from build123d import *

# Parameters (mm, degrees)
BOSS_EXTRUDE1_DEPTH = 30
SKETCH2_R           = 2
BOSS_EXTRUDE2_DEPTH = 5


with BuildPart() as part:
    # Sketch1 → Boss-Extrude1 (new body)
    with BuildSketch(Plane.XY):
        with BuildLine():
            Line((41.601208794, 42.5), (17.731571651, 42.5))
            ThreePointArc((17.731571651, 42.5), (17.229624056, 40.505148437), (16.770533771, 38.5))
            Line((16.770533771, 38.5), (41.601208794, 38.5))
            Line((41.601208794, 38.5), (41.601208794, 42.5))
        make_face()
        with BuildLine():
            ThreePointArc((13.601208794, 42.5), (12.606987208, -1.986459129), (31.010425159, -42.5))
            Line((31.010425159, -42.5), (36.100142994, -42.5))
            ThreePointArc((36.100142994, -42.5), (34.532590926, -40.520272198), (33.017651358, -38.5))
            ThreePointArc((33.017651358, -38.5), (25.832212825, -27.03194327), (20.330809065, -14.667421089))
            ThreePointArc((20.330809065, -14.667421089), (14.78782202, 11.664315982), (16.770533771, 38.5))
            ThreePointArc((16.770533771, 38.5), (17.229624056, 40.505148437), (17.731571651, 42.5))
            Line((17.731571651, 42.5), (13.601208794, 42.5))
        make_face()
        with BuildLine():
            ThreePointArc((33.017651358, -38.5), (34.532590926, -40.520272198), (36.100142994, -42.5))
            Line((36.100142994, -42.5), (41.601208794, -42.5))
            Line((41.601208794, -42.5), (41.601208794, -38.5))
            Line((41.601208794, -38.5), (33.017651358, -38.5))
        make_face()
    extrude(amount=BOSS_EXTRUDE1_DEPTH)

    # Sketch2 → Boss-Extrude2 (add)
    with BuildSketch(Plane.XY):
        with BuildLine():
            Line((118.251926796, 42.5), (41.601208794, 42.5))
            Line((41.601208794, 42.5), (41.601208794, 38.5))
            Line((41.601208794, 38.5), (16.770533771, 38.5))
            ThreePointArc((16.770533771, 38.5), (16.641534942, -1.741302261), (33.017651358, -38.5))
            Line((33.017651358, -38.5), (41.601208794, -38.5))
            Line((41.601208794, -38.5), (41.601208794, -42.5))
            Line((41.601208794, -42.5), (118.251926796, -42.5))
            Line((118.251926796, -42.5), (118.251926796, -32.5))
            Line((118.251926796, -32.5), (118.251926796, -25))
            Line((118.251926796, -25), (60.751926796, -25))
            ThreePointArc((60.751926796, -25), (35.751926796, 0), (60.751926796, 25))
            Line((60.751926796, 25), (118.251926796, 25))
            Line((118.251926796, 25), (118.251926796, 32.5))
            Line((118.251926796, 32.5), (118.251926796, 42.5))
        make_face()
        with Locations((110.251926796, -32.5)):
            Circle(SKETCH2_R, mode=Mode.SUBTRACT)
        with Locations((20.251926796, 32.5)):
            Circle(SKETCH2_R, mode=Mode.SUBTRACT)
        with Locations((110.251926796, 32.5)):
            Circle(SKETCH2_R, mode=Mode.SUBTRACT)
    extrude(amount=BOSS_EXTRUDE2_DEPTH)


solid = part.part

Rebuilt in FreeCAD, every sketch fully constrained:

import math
import FreeCAD as App
import Part
import Sketcher
from FreeCAD import Vector
Q = App.Units.Quantity

doc = App.newDocument("Part")
body = doc.addObject("PartDesign::Body", "Body")

# Sketch on XY plane
sketch1 = body.newObject("Sketcher::SketchObject", "Sketch")
sketch1.AttachmentSupport = (doc.getObject("XY_Plane"), [""])
sketch1.MapMode = "FlatFace"
sketch1.addGeometry(Part.LineSegment(Vector(41.601209, 42.5, 0), Vector(13.601209, 42.5, 0)), False)
sketch1.addGeometry(Part.ArcOfCircle(Part.Circle(Vector(110.573306, 18.078445, 0), Vector(0, 0, 1), 100), math.radians(165.86452), math.radians(217.285311)), False)
sketch1.addGeometry(Part.LineSegment(Vector(31.010425, -42.5, 0), Vector(41.601209, -42.5, 0)), False)
sketch1.addGeometry(Part.LineSegment(Vector(41.601209, -42.5, 0), Vector(41.601209, -38.5, 0)), False)
sketch1.addGeometry(Part.LineSegment(Vector(41.601209, -38.5, 0), Vector(33.017651, -38.5, 0)), False)
sketch1.addGeometry(Part.ArcOfCircle(Part.Circle(Vector(110.573306, 18.078445, 0), Vector(0, 0, 1), 96), math.radians(-160.055925), math.radians(-143.88848)), False)
sketch1.addGeometry(Part.ArcOfCircle(Part.Circle(Vector(110.573306, 18.078445, 0), Vector(0, 0, 1), 96), math.radians(167.717935), math.radians(199.944075)), False)
sketch1.addGeometry(Part.LineSegment(Vector(16.770534, 38.5, 0), Vector(41.601209, 38.5, 0)), False)
sketch1.addGeometry(Part.LineSegment(Vector(41.601209, 38.5, 0), Vector(41.601209, 42.5, 0)), False)
sketch1.addConstraint(Sketcher.Constraint("Coincident", 0, 2, 1, 1))
sketch1.addConstraint(Sketcher.Constraint("Coincident", 1, 2, 2, 1))
sketch1.addConstraint(Sketcher.Constraint("Coincident", 2, 2, 3, 1))
sketch1.addConstraint(Sketcher.Constraint("Coincident", 3, 2, 4, 1))
sketch1.addConstraint(Sketcher.Constraint("Coincident", 4, 2, 5, 2))
sketch1.addConstraint(Sketcher.Constraint("Tangent", 5, 1, 6, 2))
sketch1.addConstraint(Sketcher.Constraint("Coincident", 6, 1, 7, 1))
sketch1.addConstraint(Sketcher.Constraint("Coincident", 7, 2, 8, 1))
sketch1.addConstraint(Sketcher.Constraint("Coincident", 8, 2, 0, 1))
sketch1.addConstraint(Sketcher.Constraint("Horizontal", 0))
sketch1.addConstraint(Sketcher.Constraint("Horizontal", 2))
sketch1.addConstraint(Sketcher.Constraint("Vertical", 3))
sketch1.addConstraint(Sketcher.Constraint("Horizontal", 4))
sketch1.addConstraint(Sketcher.Constraint("Horizontal", 7))
sketch1.addConstraint(Sketcher.Constraint("Vertical", 8))
sketch1.addConstraint(Sketcher.Constraint("Coincident", 5, 3, 1, 3))
sketch1.addConstraint(Sketcher.Constraint("Equal", 5, 6))
sketch1.addConstraint(Sketcher.Constraint("Symmetric", 3, 2, 7, 2, -1))
sketch1.addConstraint(Sketcher.Constraint("Equal", 3, 8))
sketch1.addConstraint(Sketcher.Constraint("Radius", 1, Q("100 mm")))
sketch1.addConstraint(Sketcher.Constraint("Radius", 5, Q("96 mm")))
sketch1.addConstraint(Sketcher.Constraint("DistanceX", 0, 2, 0, 1, Q("28 mm")))
sketch1.addConstraint(Sketcher.Constraint("DistanceY", 3, 1, 3, 2, Q("4 mm")))
sketch1.addConstraint(Sketcher.Constraint("DistanceY", 1, 2, 0, 2, Q("85 mm")))
sketch1.addConstraint(Sketcher.Constraint("DistanceX", 5, 1, 3, 2, Q("21.2704 mm")))
sketch1.addConstraint(Sketcher.Constraint("DistanceX", 2, 1, 2, 2, Q("10.590784 mm")))
sketch1.addConstraint(Sketcher.Constraint("DistanceX", -1, 1, 0, 2, Q("13.601209 mm")))
pad1 = body.newObject("PartDesign::Pad", "Pad")
pad1.Profile = sketch1
pad1.Length = 30

# Sketch on XY plane
sketch2 = body.newObject("Sketcher::SketchObject", "Sketch001")
sketch2.AttachmentSupport = (doc.getObject("XY_Plane"), [""])
sketch2.MapMode = "FlatFace"
sketch2.addGeometry(Part.LineSegment(Vector(118.251927, 42.5, 0), Vector(41.601209, 42.5, 0)), False)
sketch2.addGeometry(Part.LineSegment(Vector(41.601209, 42.5, 0), Vector(41.601209, 38.5, 0)), False)
sketch2.addGeometry(Part.LineSegment(Vector(41.601209, 38.5, 0), Vector(16.770534, 38.5, 0)), False)
sketch2.addGeometry(Part.ArcOfCircle(Part.Circle(Vector(110.573306, 18.078445, 0), Vector(0, 0, 1), 96), math.radians(167.717935), math.radians(216.11152)), False)
sketch2.addGeometry(Part.LineSegment(Vector(33.017651, -38.5, 0), Vector(41.601209, -38.5, 0)), False)
sketch2.addGeometry(Part.LineSegment(Vector(41.601209, -38.5, 0), Vector(41.601209, -42.5, 0)), False)
sketch2.addGeometry(Part.LineSegment(Vector(41.601209, -42.5, 0), Vector(118.251927, -42.5, 0)), False)
sketch2.addGeometry(Part.LineSegment(Vector(118.251927, -42.5, 0), Vector(118.251927, -25, 0)), False)
sketch2.addGeometry(Part.LineSegment(Vector(118.251927, -25, 0), Vector(60.751927, -25, 0)), False)
sketch2.addGeometry(Part.ArcOfCircle(Part.Circle(Vector(60.751927, 0, 0), Vector(0, 0, 1), 25), math.radians(90), math.radians(270)), False)
sketch2.addGeometry(Part.LineSegment(Vector(60.751927, 25, 0), Vector(118.251927, 25, 0)), False)
sketch2.addGeometry(Part.LineSegment(Vector(118.251927, 25, 0), Vector(118.251927, 42.5, 0)), False)
sketch2.addGeometry(Part.Circle(Vector(110.251927, -32.5, 0), Vector(0, 0, 1), 2), False)
sketch2.addGeometry(Part.Circle(Vector(20.251927, 32.5, 0), Vector(0, 0, 1), 2), False)
sketch2.addGeometry(Part.Circle(Vector(110.251927, 32.5, 0), Vector(0, 0, 1), 2), False)
sketch2.addConstraint(Sketcher.Constraint("Coincident", 0, 2, 1, 1))
sketch2.addConstraint(Sketcher.Constraint("Coincident", 1, 2, 2, 1))
sketch2.addConstraint(Sketcher.Constraint("Coincident", 2, 2, 3, 1))
sketch2.addConstraint(Sketcher.Constraint("Coincident", 3, 2, 4, 1))
sketch2.addConstraint(Sketcher.Constraint("Coincident", 4, 2, 5, 1))
sketch2.addConstraint(Sketcher.Constraint("Coincident", 5, 2, 6, 1))
sketch2.addConstraint(Sketcher.Constraint("Coincident", 6, 2, 7, 1))
sketch2.addConstraint(Sketcher.Constraint("Coincident", 7, 2, 8, 1))
sketch2.addConstraint(Sketcher.Constraint("Tangent", 8, 2, 9, 2))
sketch2.addConstraint(Sketcher.Constraint("Tangent", 9, 1, 10, 1))
sketch2.addConstraint(Sketcher.Constraint("Coincident", 10, 2, 11, 1))
sketch2.addConstraint(Sketcher.Constraint("Coincident", 11, 2, 0, 1))
sketch2.addConstraint(Sketcher.Constraint("Horizontal", 0))
sketch2.addConstraint(Sketcher.Constraint("Vertical", 1))
sketch2.addConstraint(Sketcher.Constraint("Horizontal", 2))
sketch2.addConstraint(Sketcher.Constraint("Horizontal", 4))
sketch2.addConstraint(Sketcher.Constraint("Vertical", 5))
sketch2.addConstraint(Sketcher.Constraint("Horizontal", 6))
sketch2.addConstraint(Sketcher.Constraint("Vertical", 7))
sketch2.addConstraint(Sketcher.Constraint("Horizontal", 8))
sketch2.addConstraint(Sketcher.Constraint("Horizontal", 10))
sketch2.addConstraint(Sketcher.Constraint("Vertical", 11))
sketch2.addConstraint(Sketcher.Constraint("Equal", 12, 13))
sketch2.addConstraint(Sketcher.Constraint("Equal", 13, 14))
sketch2.addConstraint(Sketcher.Constraint("Symmetric", 12, 3, 14, 3, -1))
sketch2.addConstraint(Sketcher.Constraint("Symmetric", 1, 2, 4, 2, -1))
sketch2.addConstraint(Sketcher.Constraint("Symmetric", 7, 2, 10, 2, -1))
sketch2.addConstraint(Sketcher.Constraint("Horizontal", 13, 3, 14, 3))
sketch2.addConstraint(Sketcher.Constraint("Equal", 1, 5))
sketch2.addConstraint(Sketcher.Constraint("Diameter", 12, Q("4 mm")))
sketch2.addConstraint(Sketcher.Constraint("Radius", 3, Q("96 mm")))
sketch2.addConstraint(Sketcher.Constraint("Radius", 9, Q("25 mm")))
sketch2.addConstraint(Sketcher.Constraint("DistanceY", 1, 2, 1, 1, Q("4 mm")))
sketch2.addConstraint(Sketcher.Constraint("DistanceX", 8, 2, 8, 1, Q("57.5 mm")))
sketch2.addConstraint(Sketcher.Constraint("DistanceY", 7, 1, 7, 2, Q("17.5 mm")))
sketch2.addConstraint(Sketcher.Constraint("DistanceX", 13, 3, 12, 3, Q("90 mm")))
sketch2.addConstraint(Sketcher.Constraint("DistanceY", 12, 3, 13, 3, Q("65 mm")))
sketch2.addConstraint(Sketcher.Constraint("DistanceX", 12, 3, 6, 2, Q("8 mm")))
sketch2.addConstraint(Sketcher.Constraint("DistanceX", 0, 2, 0, 1, Q("76.650718 mm")))
sketch2.addConstraint(Sketcher.Constraint("DistanceX", 2, 2, 2, 1, Q("24.830675 mm")))
sketch2.addConstraint(Sketcher.Constraint("DistanceX", 4, 1, 4, 2, Q("8.583557 mm")))
sketch2.addConstraint(Sketcher.Constraint("DistanceX", -1, 1, 0, 2, Q("41.601209 mm")))
pad2 = body.newObject("PartDesign::Pad", "Pad001")
pad2.Profile = sketch2
pad2.Length = 5

doc.recompute()
